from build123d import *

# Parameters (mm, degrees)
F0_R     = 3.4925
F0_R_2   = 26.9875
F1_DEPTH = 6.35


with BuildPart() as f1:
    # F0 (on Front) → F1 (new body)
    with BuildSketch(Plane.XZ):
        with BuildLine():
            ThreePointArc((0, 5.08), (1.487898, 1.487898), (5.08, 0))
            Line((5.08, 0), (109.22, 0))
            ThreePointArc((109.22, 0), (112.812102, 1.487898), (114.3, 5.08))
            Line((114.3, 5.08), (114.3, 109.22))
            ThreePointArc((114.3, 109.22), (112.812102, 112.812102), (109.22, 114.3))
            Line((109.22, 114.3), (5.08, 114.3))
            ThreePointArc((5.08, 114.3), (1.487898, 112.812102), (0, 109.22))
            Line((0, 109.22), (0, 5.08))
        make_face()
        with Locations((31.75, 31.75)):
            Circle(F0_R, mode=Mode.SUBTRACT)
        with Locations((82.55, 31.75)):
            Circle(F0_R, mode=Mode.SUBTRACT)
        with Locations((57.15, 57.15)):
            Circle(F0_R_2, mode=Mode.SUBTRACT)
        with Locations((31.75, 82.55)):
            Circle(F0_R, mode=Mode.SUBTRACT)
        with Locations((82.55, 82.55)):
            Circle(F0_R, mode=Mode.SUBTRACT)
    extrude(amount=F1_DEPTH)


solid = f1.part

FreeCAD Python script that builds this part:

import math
import FreeCAD as App
import Part
import Sketcher

V = App.Vector
Q = App.Units.Quantity

doc = App.newDocument("Part")
params = doc.addObject("Spreadsheet::Sheet", "Params")
for row, (alias, value) in enumerate([
    ("sketch1_radius", "0.2000001 in"),
    ("sketch1_diameter", "0.275 in"),
    ("sketch1_diameter2", "2.125 in"),
    ("sketch1_width", "4.1 in"),
    ("pad1_length", "0.25 in"),
], start=1):
    params.set(f"A{row}", alias)
    params.set(f"B{row}", "=" + value)
    params.setAlias(f"B{row}", alias)

body = doc.addObject("PartDesign::Body", "Body")

sketch1 = doc.addObject("Sketcher::SketchObject", "Sketch")
body.addObject(sketch1)
sketch1.AttachmentSupport = (doc.XZ_Plane, [""])
sketch1.MapMode = "FlatFace"
sketch1.addGeometry([
    Part.ArcOfCircle(Part.Circle(V(5.1, 5.1, 0), V(0, 0, 1), 5.1), math.radians(-180), math.radians(-90)),
    Part.LineSegment(V(5.1, 0, 0), V(109.2, 0, 0)),
    Part.ArcOfCircle(Part.Circle(V(109.2, 5.1, 0), V(0, 0, 1), 5.1), math.radians(-90), math.radians(0)),
    Part.LineSegment(V(114.3, 5.1, 0), V(114.3, 109.2, 0)),
    Part.ArcOfCircle(Part.Circle(V(109.2, 109.2, 0), V(0, 0, 1), 5.1), math.radians(0), math.radians(90)),
    Part.LineSegment(V(109.2, 114.3, 0), V(5.1, 114.3, 0)),
    Part.ArcOfCircle(Part.Circle(V(5.1, 109.2, 0), V(0, 0, 1), 5.1), math.radians(90), math.radians(180)),
    Part.LineSegment(V(0, 109.2, 0), V(0, 5.1, 0)),
    Part.Circle(V(31.8, 31.8, 0), V(0, 0, 1), 3.5),
    Part.Circle(V(82.5, 31.8, 0), V(0, 0, 1), 3.5),
    Part.Circle(V(57.1, 57.1, 0), V(0, 0, 1), 27),
    Part.Circle(V(31.8, 82.5, 0), V(0, 0, 1), 3.5),
    Part.Circle(V(82.5, 82.5, 0), V(0, 0, 1), 3.5),
], False)
sketch1.addConstraint([
    Sketcher.Constraint("Tangent", 0, 2, 1, 1),
    Sketcher.Constraint("Tangent", 1, 2, 2, 1),
    Sketcher.Constraint("Tangent", 2, 2, 3, 1),
    Sketcher.Constraint("Tangent", 3, 2, 4, 1),
    Sketcher.Constraint("Tangent", 4, 2, 5, 1),
    Sketcher.Constraint("Tangent", 5, 2, 6, 1),
    Sketcher.Constraint("Tangent", 6, 2, 7, 1),
    Sketcher.Constraint("Tangent", 7, 2, 0, 1),
    Sketcher.Constraint("Horizontal", 1),
    Sketcher.Constraint("Vertical", 3),
    Sketcher.Constraint("Horizontal", 5),
    Sketcher.Constraint("Vertical", 7),
    Sketcher.Constraint("Equal", 0, 2),
    Sketcher.Constraint("Equal", 2, 4),
    Sketcher.Constraint("Equal", 4, 6),
    Sketcher.Constraint("Equal", 8, 9),
    Sketcher.Constraint("Equal", 9, 11),
    Sketcher.Constraint("Equal", 11, 12),
    Sketcher.Constraint("PointOnObject", 0, 2, -1),
    Sketcher.Constraint("PointOnObject", 6, 2, -2),
    Sketcher.Constraint("Horizontal", 8, 3, 9, 3),
    Sketcher.Constraint("Horizontal", 11, 3, 12, 3),
    Sketcher.Constraint("Vertical", 8, 3, 11, 3),
    Sketcher.Constraint("Vertical", 9, 3, 12, 3),
    Sketcher.Constraint("Equal", 5, 3),
    Sketcher.Constraint("Radius", 0, Q("0.2000001 in")),
    Sketcher.Constraint("Diameter", 8, Q("0.275 in")),
    Sketcher.Constraint("Diameter", 10, Q("2.125 in")),
    Sketcher.Constraint("DistanceX", 1, 1, 1, 2, Q("4.1 in")),
    Sketcher.Constraint("DistanceX", 8, 3, 9, 3, Q("2 in")),
    Sketcher.Constraint("DistanceX", 8, 3, 10, 3, Q("1 in")),
    Sketcher.Constraint("DistanceY", 8, 3, 10, 3, Q("1 in")),
    Sketcher.Constraint("DistanceY", 10, 3, 11, 3, Q("1 in")),
    Sketcher.Constraint("DistanceX", -1, 1, 8, 3, Q("1.25 in")),
    Sketcher.Constraint("DistanceY", -1, 1, 8, 3, Q("1.25 in")),
])
sketch1.setExpression("Constraints[25]", "Params.sketch1_radius")
sketch1.setExpression("Constraints[26]", "Params.sketch1_diameter")
sketch1.setExpression("Constraints[27]", "Params.sketch1_diameter2")
sketch1.setExpression("Constraints[28]", "Params.sketch1_width")
pad1 = doc.addObject("PartDesign::Pad", "Pad")
body.addObject(pad1)
pad1.Profile = sketch1
pad1.setExpression("Length", "Params.pad1_length")

doc.recompute()
